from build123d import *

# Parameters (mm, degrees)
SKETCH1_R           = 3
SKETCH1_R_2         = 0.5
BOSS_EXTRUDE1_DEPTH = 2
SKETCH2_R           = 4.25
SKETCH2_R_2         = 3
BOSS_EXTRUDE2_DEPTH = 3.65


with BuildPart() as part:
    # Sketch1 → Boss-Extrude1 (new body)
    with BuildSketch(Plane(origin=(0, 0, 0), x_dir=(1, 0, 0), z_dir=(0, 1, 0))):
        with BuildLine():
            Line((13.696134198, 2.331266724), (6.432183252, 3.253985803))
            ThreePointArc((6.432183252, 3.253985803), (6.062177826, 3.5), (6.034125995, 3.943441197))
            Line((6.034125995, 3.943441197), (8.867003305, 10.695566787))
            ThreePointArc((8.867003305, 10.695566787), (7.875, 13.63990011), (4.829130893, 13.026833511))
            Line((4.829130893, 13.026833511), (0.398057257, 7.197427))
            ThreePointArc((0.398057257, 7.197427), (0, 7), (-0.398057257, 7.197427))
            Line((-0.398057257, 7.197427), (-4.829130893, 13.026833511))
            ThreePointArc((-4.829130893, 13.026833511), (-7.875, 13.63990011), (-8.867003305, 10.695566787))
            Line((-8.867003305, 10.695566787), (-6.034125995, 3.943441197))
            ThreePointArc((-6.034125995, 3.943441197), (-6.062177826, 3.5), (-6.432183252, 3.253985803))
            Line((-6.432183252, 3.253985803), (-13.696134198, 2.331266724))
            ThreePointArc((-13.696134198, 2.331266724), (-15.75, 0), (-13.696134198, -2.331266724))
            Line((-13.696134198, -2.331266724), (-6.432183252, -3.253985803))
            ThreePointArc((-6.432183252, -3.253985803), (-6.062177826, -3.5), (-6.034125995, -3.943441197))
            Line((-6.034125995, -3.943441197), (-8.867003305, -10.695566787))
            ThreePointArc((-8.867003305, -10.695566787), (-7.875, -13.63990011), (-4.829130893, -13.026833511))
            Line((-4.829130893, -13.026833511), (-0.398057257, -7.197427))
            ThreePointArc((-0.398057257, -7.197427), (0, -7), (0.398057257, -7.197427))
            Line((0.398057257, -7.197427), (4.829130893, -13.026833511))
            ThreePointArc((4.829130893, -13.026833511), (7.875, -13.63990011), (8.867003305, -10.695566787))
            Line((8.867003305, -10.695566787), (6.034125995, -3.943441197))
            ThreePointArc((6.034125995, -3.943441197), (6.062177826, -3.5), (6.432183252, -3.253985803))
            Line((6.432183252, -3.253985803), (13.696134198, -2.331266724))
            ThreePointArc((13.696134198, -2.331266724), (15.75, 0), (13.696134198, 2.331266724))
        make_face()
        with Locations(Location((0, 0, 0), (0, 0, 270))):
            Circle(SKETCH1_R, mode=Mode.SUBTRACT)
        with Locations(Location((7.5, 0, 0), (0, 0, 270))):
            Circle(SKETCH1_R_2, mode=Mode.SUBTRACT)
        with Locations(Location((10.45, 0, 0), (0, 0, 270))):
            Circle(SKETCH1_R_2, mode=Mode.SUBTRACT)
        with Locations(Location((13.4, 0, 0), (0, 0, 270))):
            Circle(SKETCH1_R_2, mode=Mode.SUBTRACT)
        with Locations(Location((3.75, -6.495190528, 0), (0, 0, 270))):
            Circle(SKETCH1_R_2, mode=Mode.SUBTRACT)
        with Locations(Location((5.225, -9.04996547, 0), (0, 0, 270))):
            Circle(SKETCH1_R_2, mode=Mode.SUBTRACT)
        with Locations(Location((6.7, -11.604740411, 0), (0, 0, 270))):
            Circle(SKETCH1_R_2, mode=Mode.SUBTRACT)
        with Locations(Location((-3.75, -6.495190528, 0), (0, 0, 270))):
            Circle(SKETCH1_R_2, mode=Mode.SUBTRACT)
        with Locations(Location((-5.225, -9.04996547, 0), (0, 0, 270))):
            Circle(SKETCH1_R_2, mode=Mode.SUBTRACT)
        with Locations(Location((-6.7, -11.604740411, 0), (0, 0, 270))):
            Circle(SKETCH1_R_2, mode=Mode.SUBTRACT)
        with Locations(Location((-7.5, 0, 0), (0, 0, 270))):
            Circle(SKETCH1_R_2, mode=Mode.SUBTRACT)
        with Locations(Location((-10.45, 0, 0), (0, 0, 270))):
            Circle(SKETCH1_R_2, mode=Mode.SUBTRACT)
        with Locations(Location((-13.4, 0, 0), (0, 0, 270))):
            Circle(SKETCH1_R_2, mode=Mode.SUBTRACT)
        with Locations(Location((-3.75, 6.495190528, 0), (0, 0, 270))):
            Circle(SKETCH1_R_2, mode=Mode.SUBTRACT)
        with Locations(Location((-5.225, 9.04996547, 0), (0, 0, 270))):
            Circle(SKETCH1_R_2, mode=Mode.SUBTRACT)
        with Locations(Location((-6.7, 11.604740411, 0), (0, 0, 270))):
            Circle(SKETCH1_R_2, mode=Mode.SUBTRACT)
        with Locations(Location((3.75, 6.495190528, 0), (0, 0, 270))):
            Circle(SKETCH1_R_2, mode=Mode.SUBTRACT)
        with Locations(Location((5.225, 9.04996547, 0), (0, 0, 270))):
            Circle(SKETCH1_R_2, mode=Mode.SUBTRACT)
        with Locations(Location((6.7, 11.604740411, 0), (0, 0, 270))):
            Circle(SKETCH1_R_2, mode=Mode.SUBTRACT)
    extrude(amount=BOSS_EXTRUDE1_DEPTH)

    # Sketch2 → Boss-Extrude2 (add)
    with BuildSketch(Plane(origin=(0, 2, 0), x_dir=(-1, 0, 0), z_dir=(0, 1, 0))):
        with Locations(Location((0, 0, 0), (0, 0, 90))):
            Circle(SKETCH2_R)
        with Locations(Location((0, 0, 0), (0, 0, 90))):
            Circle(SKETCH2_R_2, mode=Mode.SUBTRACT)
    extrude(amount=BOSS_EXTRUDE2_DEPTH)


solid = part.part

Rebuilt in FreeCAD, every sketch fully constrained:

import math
import FreeCAD as App
import Part
import Sketcher
Q = App.Units.Quantity

doc = App.newDocument("Part")
body = doc.addObject("PartDesign::Body", "Body")

# Sketch on XZ plane
sketch1 = body.newObject("Sketcher::SketchObject", "Sketch")
sketch1.AttachmentSupport = (doc.getObject("XZ_Plane"), [""])
sketch1.MapMode = "FlatFace"
sketch1.addGeometry(Part.LineSegment(App.Vector(13.7, -2.3, 0), App.Vector(6.4, -3.3, 0)), False)
sketch1.addGeometry(Part.ArcOfCircle(Part.Circle(App.Vector(6.5, -3.8, 0), App.Vector(0, 0, 1), 0.5), math.radians(97), math.radians(203)), False)
sketch1.addGeometry(Part.LineSegment(App.Vector(6, -3.9, 0), App.Vector(8.9, -10.7, 0)), False)
sketch1.addGeometry(Part.ArcOfCircle(Part.Circle(App.Vector(6.7, -11.6, 0), App.Vector(0, 0, 1), 2.4), math.radians(-143), math.radians(23)), False)
sketch1.addGeometry(Part.LineSegment(App.Vector(4.8, -13, 0), App.Vector(0.4, -7.2, 0)), False)
sketch1.addGeometry(Part.ArcOfCircle(Part.Circle(App.Vector(0, -7.5, 0), App.Vector(0, 0, 1), 0.5), math.radians(37), math.radians(143)), False)
sketch1.addGeometry(Part.LineSegment(App.Vector(-0.4, -7.2, 0), App.Vector(-4.8, -13, 0)), False)
sketch1.addGeometry(Part.ArcOfCircle(Part.Circle(App.Vector(-6.7, -11.6, 0), App.Vector(0, 0, 1), 2.4), math.radians(157), math.radians(323)), False)
sketch1.addGeometry(Part.LineSegment(App.Vector(-8.9, -10.7, 0), App.Vector(-6, -3.9, 0)), False)
sketch1.addGeometry(Part.ArcOfCircle(Part.Circle(App.Vector(-6.5, -3.8, 0), App.Vector(0, 0, 1), 0.5), math.radians(-23), math.radians(83)), False)
sketch1.addGeometry(Part.LineSegment(App.Vector(-6.4, -3.3, 0), App.Vector(-13.7, -2.3, 0)), False)
sketch1.addGeometry(Part.ArcOfCircle(Part.Circle(App.Vector(-13.4, 0, 0), App.Vector(0, 0, 1), 2.4), math.radians(97), math.radians(263)), False)
sketch1.addGeometry(Part.LineSegment(App.Vector(-13.7, 2.3, 0), App.Vector(-6.4, 3.3, 0)), False)
sketch1.addGeometry(Part.ArcOfCircle(Part.Circle(App.Vector(-6.5, 3.8, 0), App.Vector(0, 0, 1), 0.5), math.radians(-83), math.radians(23)), False)
sketch1.addGeometry(Part.LineSegment(App.Vector(-6, 3.9, 0), App.Vector(-8.9, 10.7, 0)), False)
sketch1.addGeometry(Part.ArcOfCircle(Part.Circle(App.Vector(-6.7, 11.6, 0), App.Vector(0, 0, 1), 2.4), math.radians(37), math.radians(203)), False)
sketch1.addGeometry(Part.LineSegment(App.Vector(-4.8, 13, 0), App.Vector(-0.4, 7.2, 0)), False)
sketch1.addGeometry(Part.ArcOfCircle(Part.Circle(App.Vector(0, 7.5, 0), App.Vector(0, 0, 1), 0.5), math.radians(-143), math.radians(-37)), False)
sketch1.addGeometry(Part.LineSegment(App.Vector(0.4, 7.2, 0), App.Vector(4.8, 13, 0)), False)
sketch1.addGeometry(Part.ArcOfCircle(Part.Circle(App.Vector(6.7, 11.6, 0), App.Vector(0, 0, 1), 2.4), math.radians(-23), math.radians(143)), False)
sketch1.addGeometry(Part.LineSegment(App.Vector(8.9, 10.7, 0), App.Vector(6, 3.9, 0)), False)
sketch1.addGeometry(Part.ArcOfCircle(Part.Circle(App.Vector(6.5, 3.8, 0), App.Vector(0, 0, 1), 0.5), math.radians(157), math.radians(263)), False)
sketch1.addGeometry(Part.LineSegment(App.Vector(6.4, 3.3, 0), App.Vector(13.7, 2.3, 0)), False)
sketch1.addGeometry(Part.ArcOfCircle(Part.Circle(App.Vector(13.4, 0, 0), App.Vector(0, 0, 1), 2.4), math.radians(-83), math.radians(83)), False)
sketch1.addGeometry(Part.Circle(App.Vector(-6.7, 11.6, 0), App.Vector(0, 0, 1), 0.5), False)
sketch1.addGeometry(Part.Circle(App.Vector(-5.2, 9, 0), App.Vector(0, 0, 1), 0.5), False)
sketch1.addGeometry(Part.Circle(App.Vector(-3.8, 6.5, 0), App.Vector(0, 0, 1), 0.5), False)
sketch1.addGeometry(Part.Circle(App.Vector(6.7, 11.6, 0), App.Vector(0, 0, 1), 0.5), False)
sketch1.addGeometry(Part.Circle(App.Vector(5.2, 9, 0), App.Vector(0, 0, 1), 0.5), False)
sketch1.addGeometry(Part.Circle(App.Vector(3.8, 6.5, 0), App.Vector(0, 0, 1), 0.5), False)
sketch1.addGeometry(Part.Circle(App.Vector(-13.4, 0, 0), App.Vector(0, 0, 1), 0.5), False)
sketch1.addGeometry(Part.Circle(App.Vector(-10.4, 0, 0), App.Vector(0, 0, 1), 0.5), False)
sketch1.addGeometry(Part.Circle(App.Vector(-7.5, 0, 0), App.Vector(0, 0, 1), 0.5), False)
sketch1.addGeometry(Part.Circle(App.Vector(-3.8, -6.5, 0), App.Vector(0, 0, 1), 0.5), False)
sketch1.addGeometry(Part.Circle(App.Vector(-5.2, -9, 0), App.Vector(0, 0, 1), 0.5), False)
sketch1.addGeometry(Part.Circle(App.Vector(-6.7, -11.6, 0), App.Vector(0, 0, 1), 0.5), False)
sketch1.addGeometry(Part.Circle(App.Vector(0, 0, 0), App.Vector(0, 0, 1), 3), False)
sketch1.addGeometry(Part.Circle(App.Vector(7.5, 0, 0), App.Vector(0, 0, 1), 0.5), False)
sketch1.addGeometry(Part.Circle(App.Vector(10.4, 0, 0), App.Vector(0, 0, 1), 0.5), False)
sketch1.addGeometry(Part.Circle(App.Vector(13.4, 0, 0), App.Vector(0, 0, 1), 0.5), False)
sketch1.addGeometry(Part.Circle(App.Vector(3.8, -6.5, 0), App.Vector(0, 0, 1), 0.5), False)
sketch1.addGeometry(Part.Circle(App.Vector(5.2, -9, 0), App.Vector(0, 0, 1), 0.5), False)
sketch1.addGeometry(Part.Circle(App.Vector(6.7, -11.6, 0), App.Vector(0, 0, 1), 0.5), False)
sketch1.addConstraint(Sketcher.Constraint("Tangent", 0, 2, 1, 1))
sketch1.addConstraint(Sketcher.Constraint("Tangent", 1, 2, 2, 1))
sketch1.addConstraint(Sketcher.Constraint("Tangent", 2, 2, 3, 2))
sketch1.addConstraint(Sketcher.Constraint("Tangent", 3, 1, 4, 1))
sketch1.addConstraint(Sketcher.Constraint("Tangent", 4, 2, 5, 1))
sketch1.addConstraint(Sketcher.Constraint("Tangent", 5, 2, 6, 1))
sketch1.addConstraint(Sketcher.Constraint("Tangent", 6, 2, 7, 2))
sketch1.addConstraint(Sketcher.Constraint("Tangent", 7, 1, 8, 1))
sketch1.addConstraint(Sketcher.Constraint("Tangent", 8, 2, 9, 1))
sketch1.addConstraint(Sketcher.Constraint("Tangent", 9, 2, 10, 1))
sketch1.addConstraint(Sketcher.Constraint("Tangent", 10, 2, 11, 2))
sketch1.addConstraint(Sketcher.Constraint("Tangent", 11, 1, 12, 1))
sketch1.addConstraint(Sketcher.Constraint("Tangent", 12, 2, 13, 1))
sketch1.addConstraint(Sketcher.Constraint("Tangent", 13, 2, 14, 1))
sketch1.addConstraint(Sketcher.Constraint("Tangent", 14, 2, 15, 2))
sketch1.addConstraint(Sketcher.Constraint("Tangent", 15, 1, 16, 1))
sketch1.addConstraint(Sketcher.Constraint("Tangent", 16, 2, 17, 1))
sketch1.addConstraint(Sketcher.Constraint("Tangent", 17, 2, 18, 1))
sketch1.addConstraint(Sketcher.Constraint("Tangent", 18, 2, 19, 2))
sketch1.addConstraint(Sketcher.Constraint("Tangent", 19, 1, 20, 1))
sketch1.addConstraint(Sketcher.Constraint("Tangent", 20, 2, 21, 1))
sketch1.addConstraint(Sketcher.Constraint("Tangent", 21, 2, 22, 1))
sketch1.addConstraint(Sketcher.Constraint("Tangent", 22, 2, 23, 2))
sketch1.addConstraint(Sketcher.Constraint("Tangent", 23, 1, 0, 1))
sketch1.addConstraint(Sketcher.Constraint("Coincident", 36, 3, -1, 1))
sketch1.addConstraint(Sketcher.Constraint("Coincident", 24, 3, 15, 3))
sketch1.addConstraint(Sketcher.Constraint("Coincident", 27, 3, 19, 3))
sketch1.addConstraint(Sketcher.Constraint("Coincident", 30, 3, 11, 3))
sketch1.addConstraint(Sketcher.Constraint("Coincident", 35, 3, 7, 3))
sketch1.addConstraint(Sketcher.Constraint("Coincident", 39, 3, 23, 3))
sketch1.addConstraint(Sketcher.Constraint("Coincident", 42, 3, 3, 3))
sketch1.addConstraint(Sketcher.Constraint("Equal", 1, 5))
sketch1.addConstraint(Sketcher.Constraint("Equal", 3, 7))
sketch1.addConstraint(Sketcher.Constraint("Equal", 5, 9))
sketch1.addConstraint(Sketcher.Constraint("Equal", 7, 11))
sketch1.addConstraint(Sketcher.Constraint("Equal", 9, 13))
sketch1.addConstraint(Sketcher.Constraint("Equal", 11, 15))
sketch1.addConstraint(Sketcher.Constraint("Equal", 13, 17))
sketch1.addConstraint(Sketcher.Constraint("Equal", 15, 19))
sketch1.addConstraint(Sketcher.Constraint("Equal", 17, 21))
sketch1.addConstraint(Sketcher.Constraint("Equal", 19, 23))
sketch1.addConstraint(Sketcher.Constraint("Equal", 21, 24))
sketch1.addConstraint(Sketcher.Constraint("Equal", 24, 25))
sketch1.addConstraint(Sketcher.Constraint("Equal", 25, 26))
sketch1.addConstraint(Sketcher.Constraint("Equal", 26, 27))
sketch1.addConstraint(Sketcher.Constraint("Equal", 27, 28))
sketch1.addConstraint(Sketcher.Constraint("Equal", 28, 29))
sketch1.addConstraint(Sketcher.Constraint("Equal", 29, 30))
sketch1.addConstraint(Sketcher.Constraint("Equal", 30, 31))
sketch1.addConstraint(Sketcher.Constraint("Equal", 31, 32))
sketch1.addConstraint(Sketcher.Constraint("Equal", 32, 33))
sketch1.addConstraint(Sketcher.Constraint("Equal", 33, 34))
sketch1.addConstraint(Sketcher.Constraint("Equal", 34, 35))
sketch1.addConstraint(Sketcher.Constraint("Equal", 35, 37))
sketch1.addConstraint(Sketcher.Constraint("Equal", 37, 38))
sketch1.addConstraint(Sketcher.Constraint("Equal", 38, 39))
sketch1.addConstraint(Sketcher.Constraint("Equal", 39, 40))
sketch1.addConstraint(Sketcher.Constraint("Equal", 40, 41))
sketch1.addConstraint(Sketcher.Constraint("Equal", 41, 42))
sketch1.addConstraint(Sketcher.Constraint("Symmetric", 1, 3, 13, 3, -1, 1))
sketch1.addConstraint(Sketcher.Constraint("Symmetric", 3, 3, 15, 3, -1, 1))
sketch1.addConstraint(Sketcher.Constraint("Symmetric", 5, 3, 17, 3, -1, 1))
sketch1.addConstraint(Sketcher.Constraint("Symmetric", 7, 3, 19, 3, -1, 1))
sketch1.addConstraint(Sketcher.Constraint("Symmetric", 9, 3, 21, 3, -1, 1))
sketch1.addConstraint(Sketcher.Constraint("Symmetric", 11, 3, 23, 3, -1, 1))
sketch1.addConstraint(Sketcher.Constraint("Symmetric", 29, 3, 33, 3, -1, 1))
sketch1.addConstraint(Sketcher.Constraint("Symmetric", 28, 3, 34, 3, -1, 1))
sketch1.addConstraint(Sketcher.Constraint("Symmetric", 32, 3, 37, 3, -1, 1))
sketch1.addConstraint(Sketcher.Constraint("Symmetric", 31, 3, 38, 3, -1, 1))
sketch1.addConstraint(Sketcher.Constraint("Symmetric", 26, 3, 40, 3, -1, 1))
sketch1.addConstraint(Sketcher.Constraint("Symmetric", 25, 3, 41, 3, -1, 1))
sketch1.addConstraint(Sketcher.Constraint("Symmetric", 3, 3, 7, 3, -2))
sketch1.addConstraint(Sketcher.Constraint("Symmetric", 1, 3, 9, 3, -2))
sketch1.addConstraint(Sketcher.Constraint("Symmetric", 25, 3, 28, 3, -2))
sketch1.addConstraint(Sketcher.Constraint("Symmetric", 26, 3, 29, 3, -2))
sketch1.addConstraint(Sketcher.Constraint("PointOnObject", 5, 3, -2))
sketch1.addConstraint(Sketcher.Constraint("PointOnObject", 11, 3, -1))
sketch1.addConstraint(Sketcher.Constraint("PointOnObject", 31, 3, -1))
sketch1.addConstraint(Sketcher.Constraint("PointOnObject", 32, 3, -1))
sketch1.addConstraint(Sketcher.Constraint("Equal", 0, 2))
sketch1.addConstraint(Sketcher.Constraint("Equal", 2, 4))
sketch1.addConstraint(Sketcher.Constraint("Diameter", 24, Q("1 mm")))
sketch1.addConstraint(Sketcher.Constraint("Diameter", 36, Q("6 mm")))
sketch1.addConstraint(Sketcher.Constraint("Radius", 3, Q("2.35 mm")))
sketch1.addConstraint(Sketcher.Constraint("DistanceY", 5, 3, 17, 3, Q("15 mm")))
sketch1.addConstraint(Sketcher.Constraint("DistanceX", -1, 1, 3, 3, Q("6.7 mm")))
sketch1.addConstraint(Sketcher.Constraint("DistanceX", 11, 3, -1, 1, Q("13.4 mm")))
sketch1.addConstraint(Sketcher.Constraint("DistanceX", 32, 3, -1, 1, Q("7.5 mm")))
sketch1.addConstraint(Sketcher.Constraint("DistanceY", 9, 3, 13, 3, Q("7.5 mm")))
sketch1.addConstraint(Sketcher.Constraint("DistanceX", 31, 3, 26, 3, Q("6.7 mm")))
sketch1.addConstraint(Sketcher.Constraint("DistanceX", 26, 3, -1, 1, Q("3.75 mm")))
sketch1.addConstraint(Sketcher.Constraint("DistanceX", 25, 3, -1, 1, Q("5.225 mm")))
sketch1.addConstraint(Sketcher.Constraint("DistanceY", 2, 2, 41, 3, Q("1.645601 mm")))
sketch1.addConstraint(Sketcher.Constraint("DistanceY", -1, 1, 26, 3, Q("6.495191 mm")))
pad1 = body.newObject("PartDesign::Pad", "Pad")
pad1.Profile = sketch1
pad1.Length = 2
pad1.Reversed = True

# Sketch on XZ plane
sketch2 = body.newObject("Sketcher::SketchObject", "Sketch001")
sketch2.AttachmentSupport = (doc.getObject("XZ_Plane"), [""])
sketch2.MapMode = "FlatFace"
sketch2.AttachmentOffset = App.Placement(App.Vector(0, 0, -2), App.Rotation())
sketch2.addGeometry(Part.Circle(App.Vector(0, 0, 0), App.Vector(0, 0, 1), 4.2), False)
sketch2.addGeometry(Part.Circle(App.Vector(0, 0, 0), App.Vector(0, 0, 1), 3), False)
sketch2.addConstraint(Sketcher.Constraint("Coincident", 0, 3, -1, 1))
sketch2.addConstraint(Sketcher.Constraint("Coincident", 1, 3, -1, 1))
sketch2.addConstraint(Sketcher.Constraint("Diameter", 1, Q("6 mm")))
sketch2.addConstraint(Sketcher.Constraint("Diameter", 0, Q("8.5 mm")))
pad2 = body.newObject("PartDesign::Pad", "Pad001")
pad2.Profile = sketch2
pad2.Length = 3.65
pad2.Reversed = True

doc.recompute()
